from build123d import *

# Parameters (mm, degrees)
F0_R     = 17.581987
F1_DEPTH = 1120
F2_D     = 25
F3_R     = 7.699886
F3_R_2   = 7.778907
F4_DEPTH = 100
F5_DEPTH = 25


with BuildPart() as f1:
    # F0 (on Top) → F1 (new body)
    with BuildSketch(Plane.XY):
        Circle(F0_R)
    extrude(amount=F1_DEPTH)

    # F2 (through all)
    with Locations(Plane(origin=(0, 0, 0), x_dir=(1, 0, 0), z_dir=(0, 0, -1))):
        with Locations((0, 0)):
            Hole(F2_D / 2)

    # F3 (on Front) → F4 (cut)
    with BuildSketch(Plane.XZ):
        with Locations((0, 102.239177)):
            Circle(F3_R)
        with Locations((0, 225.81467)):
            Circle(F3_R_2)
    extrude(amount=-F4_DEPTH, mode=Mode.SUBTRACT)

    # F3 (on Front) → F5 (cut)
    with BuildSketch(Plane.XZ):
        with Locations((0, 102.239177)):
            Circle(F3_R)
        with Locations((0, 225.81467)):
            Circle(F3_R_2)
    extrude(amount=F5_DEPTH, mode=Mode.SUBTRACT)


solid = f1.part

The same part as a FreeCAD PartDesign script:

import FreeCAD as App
import Part
import Sketcher
Q = App.Units.Quantity

doc = App.newDocument("Part")
body = doc.addObject("PartDesign::Body", "Body")

sketch1 = body.newObject("Sketcher::SketchObject", "Sketch")
sketch1.AttachmentSupport = (doc.getObject("XY_Plane"), [""])
sketch1.MapMode = "FlatFace"
sketch1.addGeometry(Part.Circle(App.Vector(0, 0, 0), App.Vector(0, 0, 1), 18), False)
sketch1.addConstraint([
    Sketcher.Constraint("Coincident", 0, 3, -1, 1),
    Sketcher.Constraint("Diameter", 0, Q("35.163974 mm")),
])
pad1 = body.newObject("PartDesign::Pad", "Pad")
pad1.Profile = sketch1
pad1.Length = 1120

sketch2 = body.newObject("Sketcher::SketchObject", "Sketch001")
sketch2.AttachmentSupport = (doc.getObject("XY_Plane"), [""])
sketch2.MapMode = "FlatFace"
sketch2.addGeometry(Part.Circle(App.Vector(0, 0, 0), App.Vector(0, 0, 1), 12), False)
sketch2.addConstraint([
    Sketcher.Constraint("Coincident", 0, 3, -1, 1),
    Sketcher.Constraint("Diameter", 0, Q("25 mm")),
])
doc.recompute()
hole = body.newObject("PartDesign::Hole", "Hole")
hole.Profile = sketch2
hole.ThreadType = "None"
hole.Diameter = 25
hole.DepthType = "ThroughAll"
hole.Reversed = True

sketch3 = body.newObject("Sketcher::SketchObject", "Sketch002")
sketch3.AttachmentSupport = (doc.getObject("XZ_Plane"), [""])
sketch3.MapMode = "FlatFace"
sketch3.addGeometry([
    Part.Circle(App.Vector(0, 102, 0), App.Vector(0, 0, 1), 8),
    Part.Circle(App.Vector(0, 226, 0), App.Vector(0, 0, 1), 8),
], False)
sketch3.addConstraint([
    Sketcher.Constraint("PointOnObject", 0, 3, -2),
    Sketcher.Constraint("PointOnObject", 1, 3, -2),
    Sketcher.Constraint("Diameter", 0, Q("15.399772 mm")),
    Sketcher.Constraint("Diameter", 1, Q("15.557814 mm")),
    Sketcher.Constraint("DistanceY", -1, 1, 1, 3, Q("225.81467 mm")),
    Sketcher.Constraint("DistanceY", -1, 1, 0, 3, Q("102.239177 mm")),
])
pocket1 = body.newObject("PartDesign::Pocket", "Pocket")
pocket1.Profile = sketch3
pocket1.Length = 100

sketch4 = body.newObject("Sketcher::SketchObject", "Sketch003")
sketch4.AttachmentSupport = (doc.getObject("XZ_Plane"), [""])
sketch4.MapMode = "FlatFace"
sketch4.addGeometry([
    Part.Circle(App.Vector(0, 102, 0), App.Vector(0, 0, 1), 8),
    Part.Circle(App.Vector(0, 226, 0), App.Vector(0, 0, 1), 8),
], False)
sketch4.addConstraint([
    Sketcher.Constraint("PointOnObject", 0, 3, -2),
    Sketcher.Constraint("PointOnObject", 1, 3, -2),
    Sketcher.Constraint("Diameter", 0, Q("15.399772 mm")),
    Sketcher.Constraint("Diameter", 1, Q("15.557814 mm")),
    Sketcher.Constraint("DistanceY", -1, 1, 1, 3, Q("225.81467 mm")),
    Sketcher.Constraint("DistanceY", -1, 1, 0, 3, Q("102.239177 mm")),
])
pocket2 = body.newObject("PartDesign::Pocket", "Pocket001")
pocket2.Profile = sketch4
pocket2.Length = 25
pocket2.Reversed = True

doc.recompute()
